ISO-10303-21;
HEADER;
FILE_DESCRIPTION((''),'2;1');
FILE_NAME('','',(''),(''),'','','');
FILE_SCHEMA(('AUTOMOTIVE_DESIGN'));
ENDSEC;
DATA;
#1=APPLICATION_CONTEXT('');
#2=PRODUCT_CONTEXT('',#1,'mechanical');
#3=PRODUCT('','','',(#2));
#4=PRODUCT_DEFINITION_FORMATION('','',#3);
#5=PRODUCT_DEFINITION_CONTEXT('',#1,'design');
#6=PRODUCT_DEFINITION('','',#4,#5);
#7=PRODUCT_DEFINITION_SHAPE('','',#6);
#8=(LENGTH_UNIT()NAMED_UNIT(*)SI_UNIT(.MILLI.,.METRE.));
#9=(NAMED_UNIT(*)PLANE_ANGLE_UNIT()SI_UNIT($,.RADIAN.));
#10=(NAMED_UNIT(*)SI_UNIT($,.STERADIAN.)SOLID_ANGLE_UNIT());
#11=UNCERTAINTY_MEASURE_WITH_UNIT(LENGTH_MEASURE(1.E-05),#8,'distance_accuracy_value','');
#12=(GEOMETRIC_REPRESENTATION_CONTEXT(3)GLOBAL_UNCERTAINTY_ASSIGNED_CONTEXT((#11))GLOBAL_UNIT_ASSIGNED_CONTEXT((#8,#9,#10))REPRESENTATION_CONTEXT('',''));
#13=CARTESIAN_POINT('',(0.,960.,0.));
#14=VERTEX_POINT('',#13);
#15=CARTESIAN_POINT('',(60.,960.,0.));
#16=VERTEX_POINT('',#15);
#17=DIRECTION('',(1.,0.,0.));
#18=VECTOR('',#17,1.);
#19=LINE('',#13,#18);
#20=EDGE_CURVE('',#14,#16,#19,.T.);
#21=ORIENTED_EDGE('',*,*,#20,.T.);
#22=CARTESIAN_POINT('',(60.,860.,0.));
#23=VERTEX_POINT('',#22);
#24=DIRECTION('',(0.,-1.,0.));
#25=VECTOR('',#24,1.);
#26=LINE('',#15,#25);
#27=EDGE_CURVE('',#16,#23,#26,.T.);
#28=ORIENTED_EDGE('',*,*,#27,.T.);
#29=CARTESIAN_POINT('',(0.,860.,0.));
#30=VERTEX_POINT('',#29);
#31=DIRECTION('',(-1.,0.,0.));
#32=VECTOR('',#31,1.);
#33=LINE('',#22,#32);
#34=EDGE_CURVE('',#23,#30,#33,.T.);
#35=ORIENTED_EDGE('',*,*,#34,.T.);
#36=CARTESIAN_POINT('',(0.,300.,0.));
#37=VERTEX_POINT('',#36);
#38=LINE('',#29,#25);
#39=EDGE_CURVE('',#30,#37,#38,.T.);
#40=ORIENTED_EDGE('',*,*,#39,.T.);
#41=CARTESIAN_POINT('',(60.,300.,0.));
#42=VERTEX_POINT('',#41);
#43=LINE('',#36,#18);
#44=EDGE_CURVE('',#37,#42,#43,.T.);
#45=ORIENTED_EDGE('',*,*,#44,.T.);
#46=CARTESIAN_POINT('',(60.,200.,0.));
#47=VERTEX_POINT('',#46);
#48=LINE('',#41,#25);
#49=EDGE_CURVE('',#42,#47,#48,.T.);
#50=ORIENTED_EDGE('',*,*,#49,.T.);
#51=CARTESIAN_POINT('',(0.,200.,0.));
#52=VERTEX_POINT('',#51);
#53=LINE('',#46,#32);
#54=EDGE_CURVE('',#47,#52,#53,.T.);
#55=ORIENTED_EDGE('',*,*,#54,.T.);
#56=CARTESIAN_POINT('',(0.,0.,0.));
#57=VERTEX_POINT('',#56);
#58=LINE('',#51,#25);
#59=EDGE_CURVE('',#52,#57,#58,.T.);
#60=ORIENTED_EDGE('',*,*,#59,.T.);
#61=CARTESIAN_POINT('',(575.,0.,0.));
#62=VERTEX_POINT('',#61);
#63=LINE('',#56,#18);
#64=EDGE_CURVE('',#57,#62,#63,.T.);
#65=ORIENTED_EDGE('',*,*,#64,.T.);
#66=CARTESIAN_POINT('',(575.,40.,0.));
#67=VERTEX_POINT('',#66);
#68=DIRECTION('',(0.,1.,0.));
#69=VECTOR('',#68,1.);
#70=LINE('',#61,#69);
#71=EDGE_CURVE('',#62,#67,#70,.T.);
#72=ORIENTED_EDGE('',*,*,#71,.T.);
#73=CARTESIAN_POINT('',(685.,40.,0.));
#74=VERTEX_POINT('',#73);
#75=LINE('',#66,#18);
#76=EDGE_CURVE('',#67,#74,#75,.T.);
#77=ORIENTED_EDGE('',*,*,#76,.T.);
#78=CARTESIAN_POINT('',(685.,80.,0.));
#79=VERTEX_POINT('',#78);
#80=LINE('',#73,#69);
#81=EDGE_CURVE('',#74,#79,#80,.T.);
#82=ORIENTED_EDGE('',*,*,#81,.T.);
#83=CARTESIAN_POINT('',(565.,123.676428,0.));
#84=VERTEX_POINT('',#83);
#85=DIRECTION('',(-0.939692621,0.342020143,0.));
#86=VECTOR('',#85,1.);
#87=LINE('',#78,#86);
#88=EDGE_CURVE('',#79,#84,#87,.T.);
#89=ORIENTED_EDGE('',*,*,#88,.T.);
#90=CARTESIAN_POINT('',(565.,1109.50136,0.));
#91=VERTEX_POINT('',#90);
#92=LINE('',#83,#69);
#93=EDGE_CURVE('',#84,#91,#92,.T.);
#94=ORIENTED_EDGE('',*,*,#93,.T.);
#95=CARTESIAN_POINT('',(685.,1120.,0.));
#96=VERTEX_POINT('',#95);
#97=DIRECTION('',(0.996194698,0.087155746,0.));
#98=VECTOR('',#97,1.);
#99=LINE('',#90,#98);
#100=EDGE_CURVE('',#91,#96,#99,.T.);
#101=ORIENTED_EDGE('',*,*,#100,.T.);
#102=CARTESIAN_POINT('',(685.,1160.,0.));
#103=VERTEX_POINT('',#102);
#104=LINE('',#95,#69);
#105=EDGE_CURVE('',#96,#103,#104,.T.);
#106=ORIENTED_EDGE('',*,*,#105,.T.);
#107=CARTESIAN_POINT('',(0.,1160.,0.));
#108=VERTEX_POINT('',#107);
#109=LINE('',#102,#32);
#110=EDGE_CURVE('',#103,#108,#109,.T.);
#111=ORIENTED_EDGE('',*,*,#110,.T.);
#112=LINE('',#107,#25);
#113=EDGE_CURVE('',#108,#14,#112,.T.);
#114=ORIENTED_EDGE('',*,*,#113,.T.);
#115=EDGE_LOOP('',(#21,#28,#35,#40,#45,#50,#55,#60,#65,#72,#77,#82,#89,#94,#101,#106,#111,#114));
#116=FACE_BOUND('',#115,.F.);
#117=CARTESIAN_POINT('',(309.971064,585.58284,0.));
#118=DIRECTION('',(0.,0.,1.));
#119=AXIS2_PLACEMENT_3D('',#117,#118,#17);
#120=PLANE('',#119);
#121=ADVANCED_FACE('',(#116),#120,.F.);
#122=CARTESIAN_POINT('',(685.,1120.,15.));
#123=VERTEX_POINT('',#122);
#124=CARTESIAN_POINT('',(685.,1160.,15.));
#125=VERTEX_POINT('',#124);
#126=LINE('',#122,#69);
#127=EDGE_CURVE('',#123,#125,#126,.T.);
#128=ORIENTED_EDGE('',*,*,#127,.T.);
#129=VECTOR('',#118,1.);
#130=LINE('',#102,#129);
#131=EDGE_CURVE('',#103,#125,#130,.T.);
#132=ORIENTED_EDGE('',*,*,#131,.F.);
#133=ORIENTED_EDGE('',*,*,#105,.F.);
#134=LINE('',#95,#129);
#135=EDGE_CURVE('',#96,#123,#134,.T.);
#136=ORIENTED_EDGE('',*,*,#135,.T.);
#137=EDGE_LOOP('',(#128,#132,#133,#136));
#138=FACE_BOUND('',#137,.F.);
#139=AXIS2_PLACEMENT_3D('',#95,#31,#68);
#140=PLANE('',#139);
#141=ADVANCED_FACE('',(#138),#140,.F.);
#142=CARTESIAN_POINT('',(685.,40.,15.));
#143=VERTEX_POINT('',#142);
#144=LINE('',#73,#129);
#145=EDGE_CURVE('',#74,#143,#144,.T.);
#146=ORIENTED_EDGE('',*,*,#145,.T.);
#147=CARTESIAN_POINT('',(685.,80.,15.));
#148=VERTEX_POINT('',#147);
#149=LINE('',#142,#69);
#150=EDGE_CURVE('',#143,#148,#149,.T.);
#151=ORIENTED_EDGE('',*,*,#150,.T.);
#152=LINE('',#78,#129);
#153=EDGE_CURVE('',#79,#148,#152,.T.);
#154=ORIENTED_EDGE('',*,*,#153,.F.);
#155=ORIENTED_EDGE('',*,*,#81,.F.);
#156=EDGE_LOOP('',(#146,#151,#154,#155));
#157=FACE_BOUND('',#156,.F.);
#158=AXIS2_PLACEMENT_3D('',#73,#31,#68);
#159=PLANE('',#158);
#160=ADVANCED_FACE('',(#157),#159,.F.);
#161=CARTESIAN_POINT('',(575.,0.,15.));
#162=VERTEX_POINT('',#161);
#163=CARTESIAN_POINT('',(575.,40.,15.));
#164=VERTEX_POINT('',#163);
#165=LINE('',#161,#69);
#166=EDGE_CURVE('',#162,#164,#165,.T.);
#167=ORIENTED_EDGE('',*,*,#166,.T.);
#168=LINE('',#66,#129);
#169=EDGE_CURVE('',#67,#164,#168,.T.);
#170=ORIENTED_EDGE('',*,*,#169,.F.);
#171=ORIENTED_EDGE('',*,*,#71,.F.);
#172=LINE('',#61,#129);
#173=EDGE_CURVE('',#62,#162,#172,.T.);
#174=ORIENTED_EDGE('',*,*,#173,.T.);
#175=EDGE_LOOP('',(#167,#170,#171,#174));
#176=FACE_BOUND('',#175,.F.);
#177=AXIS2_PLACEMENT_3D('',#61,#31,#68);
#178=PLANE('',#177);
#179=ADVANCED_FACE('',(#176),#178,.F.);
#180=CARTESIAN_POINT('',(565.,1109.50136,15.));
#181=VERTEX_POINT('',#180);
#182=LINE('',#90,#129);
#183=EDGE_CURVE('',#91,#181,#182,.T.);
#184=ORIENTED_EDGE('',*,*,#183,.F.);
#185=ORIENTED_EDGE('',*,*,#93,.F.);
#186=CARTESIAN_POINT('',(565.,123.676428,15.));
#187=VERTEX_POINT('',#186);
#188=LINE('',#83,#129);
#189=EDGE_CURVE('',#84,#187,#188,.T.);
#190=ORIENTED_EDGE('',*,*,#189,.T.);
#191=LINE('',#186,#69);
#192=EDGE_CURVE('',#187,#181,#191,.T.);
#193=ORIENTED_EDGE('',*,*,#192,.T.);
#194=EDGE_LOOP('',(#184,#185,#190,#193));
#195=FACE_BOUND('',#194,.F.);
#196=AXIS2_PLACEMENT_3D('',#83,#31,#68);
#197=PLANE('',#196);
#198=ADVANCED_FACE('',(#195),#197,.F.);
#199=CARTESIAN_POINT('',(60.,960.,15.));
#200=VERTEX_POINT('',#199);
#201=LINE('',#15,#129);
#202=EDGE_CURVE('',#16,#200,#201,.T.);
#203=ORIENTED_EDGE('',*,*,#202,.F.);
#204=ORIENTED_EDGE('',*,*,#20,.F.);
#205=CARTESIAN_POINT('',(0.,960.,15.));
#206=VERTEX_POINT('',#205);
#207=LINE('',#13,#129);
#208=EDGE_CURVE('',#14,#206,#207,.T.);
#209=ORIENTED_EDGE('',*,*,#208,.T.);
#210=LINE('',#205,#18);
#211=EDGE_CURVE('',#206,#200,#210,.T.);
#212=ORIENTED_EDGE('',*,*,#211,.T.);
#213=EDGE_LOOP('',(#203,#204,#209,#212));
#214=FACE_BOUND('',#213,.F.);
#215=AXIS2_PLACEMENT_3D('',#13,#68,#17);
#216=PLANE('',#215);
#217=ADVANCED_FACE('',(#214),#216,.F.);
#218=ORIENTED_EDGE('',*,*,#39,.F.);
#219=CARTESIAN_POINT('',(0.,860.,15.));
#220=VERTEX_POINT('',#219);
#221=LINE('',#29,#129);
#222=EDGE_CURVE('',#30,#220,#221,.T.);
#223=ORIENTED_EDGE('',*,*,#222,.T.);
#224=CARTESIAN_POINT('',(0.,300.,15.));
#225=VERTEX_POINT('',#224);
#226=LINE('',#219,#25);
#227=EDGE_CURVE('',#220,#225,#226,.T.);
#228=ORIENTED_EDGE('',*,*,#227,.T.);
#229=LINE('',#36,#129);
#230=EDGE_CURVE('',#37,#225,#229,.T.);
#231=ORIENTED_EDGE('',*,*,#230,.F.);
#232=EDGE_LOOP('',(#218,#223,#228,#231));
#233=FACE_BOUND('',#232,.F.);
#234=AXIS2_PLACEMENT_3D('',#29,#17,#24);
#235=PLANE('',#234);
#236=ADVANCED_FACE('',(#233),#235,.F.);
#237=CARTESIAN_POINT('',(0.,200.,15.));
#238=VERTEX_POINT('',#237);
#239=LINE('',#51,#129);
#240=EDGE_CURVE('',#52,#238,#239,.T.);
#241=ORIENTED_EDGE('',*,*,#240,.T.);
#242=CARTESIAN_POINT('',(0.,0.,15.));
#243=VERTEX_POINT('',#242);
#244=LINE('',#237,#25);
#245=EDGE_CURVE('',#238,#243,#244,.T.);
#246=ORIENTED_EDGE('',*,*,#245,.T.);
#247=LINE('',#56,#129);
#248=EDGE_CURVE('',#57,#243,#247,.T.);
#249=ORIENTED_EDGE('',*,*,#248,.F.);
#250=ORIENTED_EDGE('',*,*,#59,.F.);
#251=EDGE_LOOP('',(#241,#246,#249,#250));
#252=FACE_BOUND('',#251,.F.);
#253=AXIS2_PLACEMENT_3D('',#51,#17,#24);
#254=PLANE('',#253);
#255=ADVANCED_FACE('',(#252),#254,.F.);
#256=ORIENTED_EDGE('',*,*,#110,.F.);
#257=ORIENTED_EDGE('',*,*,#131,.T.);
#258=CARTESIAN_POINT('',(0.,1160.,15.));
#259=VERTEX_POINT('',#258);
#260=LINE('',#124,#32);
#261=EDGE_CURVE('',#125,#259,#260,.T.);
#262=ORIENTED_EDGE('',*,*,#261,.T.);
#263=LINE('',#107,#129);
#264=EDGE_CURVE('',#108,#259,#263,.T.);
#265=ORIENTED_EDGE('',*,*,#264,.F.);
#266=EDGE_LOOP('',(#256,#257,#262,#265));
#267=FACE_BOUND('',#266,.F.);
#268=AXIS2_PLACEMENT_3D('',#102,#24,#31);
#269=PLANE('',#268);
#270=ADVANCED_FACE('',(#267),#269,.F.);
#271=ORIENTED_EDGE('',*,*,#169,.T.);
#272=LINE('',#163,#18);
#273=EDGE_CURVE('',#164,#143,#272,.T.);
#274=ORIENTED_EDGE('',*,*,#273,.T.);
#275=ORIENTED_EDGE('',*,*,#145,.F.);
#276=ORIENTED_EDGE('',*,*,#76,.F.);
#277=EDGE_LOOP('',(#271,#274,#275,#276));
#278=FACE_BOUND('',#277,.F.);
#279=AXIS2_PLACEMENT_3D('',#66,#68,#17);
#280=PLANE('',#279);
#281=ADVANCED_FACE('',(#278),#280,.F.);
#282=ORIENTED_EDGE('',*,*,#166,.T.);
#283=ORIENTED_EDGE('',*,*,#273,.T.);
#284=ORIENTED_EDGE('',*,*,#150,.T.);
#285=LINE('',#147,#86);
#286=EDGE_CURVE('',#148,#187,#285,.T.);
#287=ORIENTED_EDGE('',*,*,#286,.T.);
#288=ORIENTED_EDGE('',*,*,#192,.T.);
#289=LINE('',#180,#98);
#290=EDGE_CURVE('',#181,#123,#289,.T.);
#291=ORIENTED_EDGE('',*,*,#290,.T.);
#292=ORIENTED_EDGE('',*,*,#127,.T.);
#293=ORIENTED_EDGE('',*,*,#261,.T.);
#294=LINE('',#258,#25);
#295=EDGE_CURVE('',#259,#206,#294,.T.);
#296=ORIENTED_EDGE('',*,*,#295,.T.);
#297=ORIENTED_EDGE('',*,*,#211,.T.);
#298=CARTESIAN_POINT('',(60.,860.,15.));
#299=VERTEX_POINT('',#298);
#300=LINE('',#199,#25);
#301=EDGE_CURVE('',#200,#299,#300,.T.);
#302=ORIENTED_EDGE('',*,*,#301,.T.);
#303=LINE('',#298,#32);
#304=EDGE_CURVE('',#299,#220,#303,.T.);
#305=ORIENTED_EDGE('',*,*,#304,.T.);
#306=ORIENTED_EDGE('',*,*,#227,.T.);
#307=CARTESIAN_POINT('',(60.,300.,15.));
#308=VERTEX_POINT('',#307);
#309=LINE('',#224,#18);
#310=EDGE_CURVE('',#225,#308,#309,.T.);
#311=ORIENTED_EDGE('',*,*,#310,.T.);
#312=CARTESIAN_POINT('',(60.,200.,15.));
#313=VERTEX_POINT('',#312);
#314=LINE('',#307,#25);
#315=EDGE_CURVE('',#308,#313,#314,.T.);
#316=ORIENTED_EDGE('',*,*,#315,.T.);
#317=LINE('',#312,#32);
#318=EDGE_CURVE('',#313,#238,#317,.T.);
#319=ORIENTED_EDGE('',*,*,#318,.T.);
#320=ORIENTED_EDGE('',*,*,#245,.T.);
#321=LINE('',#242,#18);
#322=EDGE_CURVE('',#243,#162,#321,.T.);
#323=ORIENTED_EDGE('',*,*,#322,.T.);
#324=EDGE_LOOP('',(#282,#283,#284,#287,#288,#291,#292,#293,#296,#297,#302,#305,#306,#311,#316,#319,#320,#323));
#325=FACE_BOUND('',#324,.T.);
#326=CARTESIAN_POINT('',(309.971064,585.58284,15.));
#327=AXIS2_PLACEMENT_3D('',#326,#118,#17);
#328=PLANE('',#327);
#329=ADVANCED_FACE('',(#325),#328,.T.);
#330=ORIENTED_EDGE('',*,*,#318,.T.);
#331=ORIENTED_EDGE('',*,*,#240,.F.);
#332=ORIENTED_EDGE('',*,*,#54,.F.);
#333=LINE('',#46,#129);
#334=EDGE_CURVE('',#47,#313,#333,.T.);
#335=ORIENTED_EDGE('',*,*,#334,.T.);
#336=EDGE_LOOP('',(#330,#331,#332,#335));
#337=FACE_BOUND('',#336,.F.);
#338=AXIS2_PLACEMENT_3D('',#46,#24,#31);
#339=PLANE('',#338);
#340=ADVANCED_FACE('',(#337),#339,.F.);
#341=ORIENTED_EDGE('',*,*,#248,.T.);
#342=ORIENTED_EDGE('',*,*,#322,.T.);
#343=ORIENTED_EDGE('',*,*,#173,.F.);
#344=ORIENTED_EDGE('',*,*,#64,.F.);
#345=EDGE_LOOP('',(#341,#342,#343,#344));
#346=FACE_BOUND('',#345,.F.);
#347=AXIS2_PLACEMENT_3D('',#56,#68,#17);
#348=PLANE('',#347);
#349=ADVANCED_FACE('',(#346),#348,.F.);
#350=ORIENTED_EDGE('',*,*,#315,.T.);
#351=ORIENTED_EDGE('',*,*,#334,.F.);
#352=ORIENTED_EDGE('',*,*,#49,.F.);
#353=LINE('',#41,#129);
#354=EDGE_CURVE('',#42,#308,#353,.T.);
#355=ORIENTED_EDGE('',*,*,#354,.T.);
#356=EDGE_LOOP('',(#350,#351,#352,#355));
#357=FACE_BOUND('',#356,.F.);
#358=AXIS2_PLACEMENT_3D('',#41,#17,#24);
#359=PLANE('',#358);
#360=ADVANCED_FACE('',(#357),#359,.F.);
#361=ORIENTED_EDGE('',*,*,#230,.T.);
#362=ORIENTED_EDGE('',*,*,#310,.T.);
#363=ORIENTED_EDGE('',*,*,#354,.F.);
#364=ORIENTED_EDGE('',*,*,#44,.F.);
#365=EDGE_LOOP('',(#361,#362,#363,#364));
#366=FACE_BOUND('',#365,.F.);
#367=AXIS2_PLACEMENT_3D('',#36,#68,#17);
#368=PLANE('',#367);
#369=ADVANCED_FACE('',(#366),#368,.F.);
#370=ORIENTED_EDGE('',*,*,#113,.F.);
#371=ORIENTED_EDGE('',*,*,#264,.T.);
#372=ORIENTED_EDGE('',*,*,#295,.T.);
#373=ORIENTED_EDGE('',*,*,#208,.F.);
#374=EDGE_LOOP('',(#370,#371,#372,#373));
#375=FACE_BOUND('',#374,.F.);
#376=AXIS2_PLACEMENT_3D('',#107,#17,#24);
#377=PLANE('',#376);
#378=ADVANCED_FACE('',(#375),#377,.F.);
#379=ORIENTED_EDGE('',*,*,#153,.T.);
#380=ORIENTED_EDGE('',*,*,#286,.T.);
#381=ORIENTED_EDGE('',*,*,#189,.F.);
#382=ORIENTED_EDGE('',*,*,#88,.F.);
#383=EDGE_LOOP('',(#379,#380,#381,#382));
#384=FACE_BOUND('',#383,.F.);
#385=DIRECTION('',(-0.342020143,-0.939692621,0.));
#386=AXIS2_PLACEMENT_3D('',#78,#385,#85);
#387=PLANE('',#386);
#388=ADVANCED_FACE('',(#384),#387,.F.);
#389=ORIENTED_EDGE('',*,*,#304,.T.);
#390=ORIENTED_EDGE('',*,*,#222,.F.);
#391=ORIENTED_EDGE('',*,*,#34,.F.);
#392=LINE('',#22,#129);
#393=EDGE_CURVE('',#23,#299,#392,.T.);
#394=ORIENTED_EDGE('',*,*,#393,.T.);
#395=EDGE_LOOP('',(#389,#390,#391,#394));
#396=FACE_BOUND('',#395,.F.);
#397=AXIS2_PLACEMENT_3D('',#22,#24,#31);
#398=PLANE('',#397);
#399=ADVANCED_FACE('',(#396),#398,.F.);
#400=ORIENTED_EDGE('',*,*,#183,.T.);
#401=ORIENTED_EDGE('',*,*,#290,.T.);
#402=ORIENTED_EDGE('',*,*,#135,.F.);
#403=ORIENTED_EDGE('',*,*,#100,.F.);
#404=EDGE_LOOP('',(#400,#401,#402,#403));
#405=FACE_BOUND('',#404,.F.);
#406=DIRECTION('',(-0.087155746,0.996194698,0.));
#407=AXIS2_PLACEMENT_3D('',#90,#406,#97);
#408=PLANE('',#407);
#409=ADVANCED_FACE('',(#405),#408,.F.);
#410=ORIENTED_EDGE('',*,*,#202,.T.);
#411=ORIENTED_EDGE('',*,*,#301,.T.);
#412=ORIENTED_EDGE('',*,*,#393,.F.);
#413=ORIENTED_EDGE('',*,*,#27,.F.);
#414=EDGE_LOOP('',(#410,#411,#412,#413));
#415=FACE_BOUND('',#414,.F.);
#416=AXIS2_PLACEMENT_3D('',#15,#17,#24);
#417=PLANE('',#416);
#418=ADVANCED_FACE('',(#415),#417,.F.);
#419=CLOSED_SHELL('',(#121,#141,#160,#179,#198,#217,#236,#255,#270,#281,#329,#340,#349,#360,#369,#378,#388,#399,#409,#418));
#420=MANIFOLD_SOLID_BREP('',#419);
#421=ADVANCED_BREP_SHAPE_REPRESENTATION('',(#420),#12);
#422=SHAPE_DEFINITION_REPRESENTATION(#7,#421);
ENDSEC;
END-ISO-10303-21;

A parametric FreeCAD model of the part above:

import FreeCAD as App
import Part
import Sketcher
from FreeCAD import Vector
Q = App.Units.Quantity


def add_polygon(sketch, points):
    """Adds a closed chain of lines whose ends are joined by coincident constraints."""
    first, n = sketch.GeometryCount, len(points)
    for a, b in zip(points, points[1:] + points[:1]):
        sketch.addGeometry(Part.LineSegment(App.Vector(*a, 0), App.Vector(*b, 0)), False)
    for i in range(n):
        sketch.addConstraint(Sketcher.Constraint("Coincident", first + i, 2, first + (i + 1) % n, 1))

doc = App.newDocument("Part")
body = doc.addObject("PartDesign::Body", "Body")

sketch1 = body.newObject("Sketcher::SketchObject", "Sketch")
sketch1.AttachmentSupport = (doc.getObject("XY_Plane"), [""])
sketch1.MapMode = "FlatFace"
add_polygon(sketch1, [(0, 200), (0, 0), (575, 0), (575, 40), (685, 40), (685, 80), (565, 124), (565, 1110), (685, 1120), (685, 1160), (0, 1160), (0, 960), (60, 960), (60, 860), (0, 860), (0, 300), (60, 300), (60, 200)])
sketch1.addConstraint(Sketcher.Constraint("Vertical", 0))
sketch1.addConstraint(Sketcher.Constraint("Horizontal", 1))
sketch1.addConstraint(Sketcher.Constraint("Vertical", 2))
sketch1.addConstraint(Sketcher.Constraint("Horizontal", 3))
sketch1.addConstraint(Sketcher.Constraint("Vertical", 4))
sketch1.addConstraint(Sketcher.Constraint("Vertical", 6))
sketch1.addConstraint(Sketcher.Constraint("Vertical", 8))
sketch1.addConstraint(Sketcher.Constraint("Horizontal", 9))
sketch1.addConstraint(Sketcher.Constraint("Vertical", 10))
sketch1.addConstraint(Sketcher.Constraint("Horizontal", 11))
sketch1.addConstraint(Sketcher.Constraint("Vertical", 12))
sketch1.addConstraint(Sketcher.Constraint("Horizontal", 13))
sketch1.addConstraint(Sketcher.Constraint("Vertical", 14))
sketch1.addConstraint(Sketcher.Constraint("Horizontal", 15))
sketch1.addConstraint(Sketcher.Constraint("Vertical", 16))
sketch1.addConstraint(Sketcher.Constraint("Horizontal", 17))
sketch1.addConstraint(Sketcher.Constraint("Coincident", 0, 2, -1, 1))
sketch1.addConstraint(Sketcher.Constraint("PointOnObject", 9, 2, -2))
sketch1.addConstraint(Sketcher.Constraint("PointOnObject", 13, 2, -2))
sketch1.addConstraint(Sketcher.Constraint("Vertical", 4, 2, 7, 2))
sketch1.addConstraint(Sketcher.Constraint("Vertical", 12, 2, 15, 2))
sketch1.addConstraint(Sketcher.Constraint("Equal", 2, 4))
sketch1.addConstraint(Sketcher.Constraint("Equal", 4, 8))
sketch1.addConstraint(Sketcher.Constraint("Equal", 0, 10))
sketch1.addConstraint(Sketcher.Constraint("Equal", 12, 16))
sketch1.addConstraint(Sketcher.Constraint("DistanceX", 1, 1, 1, 2, Q("575 mm")))
sketch1.addConstraint(Sketcher.Constraint("DistanceX", 3, 1, 3, 2, Q("110 mm")))
sketch1.addConstraint(Sketcher.Constraint("DistanceX", 11, 1, 11, 2, Q("60 mm")))
sketch1.addConstraint(Sketcher.Constraint("DistanceY", 0, 2, 0, 1, Q("200 mm")))
sketch1.addConstraint(Sketcher.Constraint("DistanceY", 2, 1, 2, 2, Q("40 mm")))
sketch1.addConstraint(Sketcher.Constraint("DistanceY", 12, 2, 12, 1, Q("100 mm")))
sketch1.addConstraint(Sketcher.Constraint("DistanceY", 14, 2, 14, 1, Q("560 mm")))
sketch1.addConstraint(Sketcher.Constraint("Angle", 5, Q("160 deg")))
sketch1.addConstraint(Sketcher.Constraint("Angle", 7, Q("5 deg")))
sketch1.addConstraint(Sketcher.Constraint("DistanceX", -1, 1, 5, 2, Q("565 mm")))
pad1 = body.newObject("PartDesign::Pad", "Pad")
pad1.Profile = sketch1
pad1.Length = 15

doc.recompute()
